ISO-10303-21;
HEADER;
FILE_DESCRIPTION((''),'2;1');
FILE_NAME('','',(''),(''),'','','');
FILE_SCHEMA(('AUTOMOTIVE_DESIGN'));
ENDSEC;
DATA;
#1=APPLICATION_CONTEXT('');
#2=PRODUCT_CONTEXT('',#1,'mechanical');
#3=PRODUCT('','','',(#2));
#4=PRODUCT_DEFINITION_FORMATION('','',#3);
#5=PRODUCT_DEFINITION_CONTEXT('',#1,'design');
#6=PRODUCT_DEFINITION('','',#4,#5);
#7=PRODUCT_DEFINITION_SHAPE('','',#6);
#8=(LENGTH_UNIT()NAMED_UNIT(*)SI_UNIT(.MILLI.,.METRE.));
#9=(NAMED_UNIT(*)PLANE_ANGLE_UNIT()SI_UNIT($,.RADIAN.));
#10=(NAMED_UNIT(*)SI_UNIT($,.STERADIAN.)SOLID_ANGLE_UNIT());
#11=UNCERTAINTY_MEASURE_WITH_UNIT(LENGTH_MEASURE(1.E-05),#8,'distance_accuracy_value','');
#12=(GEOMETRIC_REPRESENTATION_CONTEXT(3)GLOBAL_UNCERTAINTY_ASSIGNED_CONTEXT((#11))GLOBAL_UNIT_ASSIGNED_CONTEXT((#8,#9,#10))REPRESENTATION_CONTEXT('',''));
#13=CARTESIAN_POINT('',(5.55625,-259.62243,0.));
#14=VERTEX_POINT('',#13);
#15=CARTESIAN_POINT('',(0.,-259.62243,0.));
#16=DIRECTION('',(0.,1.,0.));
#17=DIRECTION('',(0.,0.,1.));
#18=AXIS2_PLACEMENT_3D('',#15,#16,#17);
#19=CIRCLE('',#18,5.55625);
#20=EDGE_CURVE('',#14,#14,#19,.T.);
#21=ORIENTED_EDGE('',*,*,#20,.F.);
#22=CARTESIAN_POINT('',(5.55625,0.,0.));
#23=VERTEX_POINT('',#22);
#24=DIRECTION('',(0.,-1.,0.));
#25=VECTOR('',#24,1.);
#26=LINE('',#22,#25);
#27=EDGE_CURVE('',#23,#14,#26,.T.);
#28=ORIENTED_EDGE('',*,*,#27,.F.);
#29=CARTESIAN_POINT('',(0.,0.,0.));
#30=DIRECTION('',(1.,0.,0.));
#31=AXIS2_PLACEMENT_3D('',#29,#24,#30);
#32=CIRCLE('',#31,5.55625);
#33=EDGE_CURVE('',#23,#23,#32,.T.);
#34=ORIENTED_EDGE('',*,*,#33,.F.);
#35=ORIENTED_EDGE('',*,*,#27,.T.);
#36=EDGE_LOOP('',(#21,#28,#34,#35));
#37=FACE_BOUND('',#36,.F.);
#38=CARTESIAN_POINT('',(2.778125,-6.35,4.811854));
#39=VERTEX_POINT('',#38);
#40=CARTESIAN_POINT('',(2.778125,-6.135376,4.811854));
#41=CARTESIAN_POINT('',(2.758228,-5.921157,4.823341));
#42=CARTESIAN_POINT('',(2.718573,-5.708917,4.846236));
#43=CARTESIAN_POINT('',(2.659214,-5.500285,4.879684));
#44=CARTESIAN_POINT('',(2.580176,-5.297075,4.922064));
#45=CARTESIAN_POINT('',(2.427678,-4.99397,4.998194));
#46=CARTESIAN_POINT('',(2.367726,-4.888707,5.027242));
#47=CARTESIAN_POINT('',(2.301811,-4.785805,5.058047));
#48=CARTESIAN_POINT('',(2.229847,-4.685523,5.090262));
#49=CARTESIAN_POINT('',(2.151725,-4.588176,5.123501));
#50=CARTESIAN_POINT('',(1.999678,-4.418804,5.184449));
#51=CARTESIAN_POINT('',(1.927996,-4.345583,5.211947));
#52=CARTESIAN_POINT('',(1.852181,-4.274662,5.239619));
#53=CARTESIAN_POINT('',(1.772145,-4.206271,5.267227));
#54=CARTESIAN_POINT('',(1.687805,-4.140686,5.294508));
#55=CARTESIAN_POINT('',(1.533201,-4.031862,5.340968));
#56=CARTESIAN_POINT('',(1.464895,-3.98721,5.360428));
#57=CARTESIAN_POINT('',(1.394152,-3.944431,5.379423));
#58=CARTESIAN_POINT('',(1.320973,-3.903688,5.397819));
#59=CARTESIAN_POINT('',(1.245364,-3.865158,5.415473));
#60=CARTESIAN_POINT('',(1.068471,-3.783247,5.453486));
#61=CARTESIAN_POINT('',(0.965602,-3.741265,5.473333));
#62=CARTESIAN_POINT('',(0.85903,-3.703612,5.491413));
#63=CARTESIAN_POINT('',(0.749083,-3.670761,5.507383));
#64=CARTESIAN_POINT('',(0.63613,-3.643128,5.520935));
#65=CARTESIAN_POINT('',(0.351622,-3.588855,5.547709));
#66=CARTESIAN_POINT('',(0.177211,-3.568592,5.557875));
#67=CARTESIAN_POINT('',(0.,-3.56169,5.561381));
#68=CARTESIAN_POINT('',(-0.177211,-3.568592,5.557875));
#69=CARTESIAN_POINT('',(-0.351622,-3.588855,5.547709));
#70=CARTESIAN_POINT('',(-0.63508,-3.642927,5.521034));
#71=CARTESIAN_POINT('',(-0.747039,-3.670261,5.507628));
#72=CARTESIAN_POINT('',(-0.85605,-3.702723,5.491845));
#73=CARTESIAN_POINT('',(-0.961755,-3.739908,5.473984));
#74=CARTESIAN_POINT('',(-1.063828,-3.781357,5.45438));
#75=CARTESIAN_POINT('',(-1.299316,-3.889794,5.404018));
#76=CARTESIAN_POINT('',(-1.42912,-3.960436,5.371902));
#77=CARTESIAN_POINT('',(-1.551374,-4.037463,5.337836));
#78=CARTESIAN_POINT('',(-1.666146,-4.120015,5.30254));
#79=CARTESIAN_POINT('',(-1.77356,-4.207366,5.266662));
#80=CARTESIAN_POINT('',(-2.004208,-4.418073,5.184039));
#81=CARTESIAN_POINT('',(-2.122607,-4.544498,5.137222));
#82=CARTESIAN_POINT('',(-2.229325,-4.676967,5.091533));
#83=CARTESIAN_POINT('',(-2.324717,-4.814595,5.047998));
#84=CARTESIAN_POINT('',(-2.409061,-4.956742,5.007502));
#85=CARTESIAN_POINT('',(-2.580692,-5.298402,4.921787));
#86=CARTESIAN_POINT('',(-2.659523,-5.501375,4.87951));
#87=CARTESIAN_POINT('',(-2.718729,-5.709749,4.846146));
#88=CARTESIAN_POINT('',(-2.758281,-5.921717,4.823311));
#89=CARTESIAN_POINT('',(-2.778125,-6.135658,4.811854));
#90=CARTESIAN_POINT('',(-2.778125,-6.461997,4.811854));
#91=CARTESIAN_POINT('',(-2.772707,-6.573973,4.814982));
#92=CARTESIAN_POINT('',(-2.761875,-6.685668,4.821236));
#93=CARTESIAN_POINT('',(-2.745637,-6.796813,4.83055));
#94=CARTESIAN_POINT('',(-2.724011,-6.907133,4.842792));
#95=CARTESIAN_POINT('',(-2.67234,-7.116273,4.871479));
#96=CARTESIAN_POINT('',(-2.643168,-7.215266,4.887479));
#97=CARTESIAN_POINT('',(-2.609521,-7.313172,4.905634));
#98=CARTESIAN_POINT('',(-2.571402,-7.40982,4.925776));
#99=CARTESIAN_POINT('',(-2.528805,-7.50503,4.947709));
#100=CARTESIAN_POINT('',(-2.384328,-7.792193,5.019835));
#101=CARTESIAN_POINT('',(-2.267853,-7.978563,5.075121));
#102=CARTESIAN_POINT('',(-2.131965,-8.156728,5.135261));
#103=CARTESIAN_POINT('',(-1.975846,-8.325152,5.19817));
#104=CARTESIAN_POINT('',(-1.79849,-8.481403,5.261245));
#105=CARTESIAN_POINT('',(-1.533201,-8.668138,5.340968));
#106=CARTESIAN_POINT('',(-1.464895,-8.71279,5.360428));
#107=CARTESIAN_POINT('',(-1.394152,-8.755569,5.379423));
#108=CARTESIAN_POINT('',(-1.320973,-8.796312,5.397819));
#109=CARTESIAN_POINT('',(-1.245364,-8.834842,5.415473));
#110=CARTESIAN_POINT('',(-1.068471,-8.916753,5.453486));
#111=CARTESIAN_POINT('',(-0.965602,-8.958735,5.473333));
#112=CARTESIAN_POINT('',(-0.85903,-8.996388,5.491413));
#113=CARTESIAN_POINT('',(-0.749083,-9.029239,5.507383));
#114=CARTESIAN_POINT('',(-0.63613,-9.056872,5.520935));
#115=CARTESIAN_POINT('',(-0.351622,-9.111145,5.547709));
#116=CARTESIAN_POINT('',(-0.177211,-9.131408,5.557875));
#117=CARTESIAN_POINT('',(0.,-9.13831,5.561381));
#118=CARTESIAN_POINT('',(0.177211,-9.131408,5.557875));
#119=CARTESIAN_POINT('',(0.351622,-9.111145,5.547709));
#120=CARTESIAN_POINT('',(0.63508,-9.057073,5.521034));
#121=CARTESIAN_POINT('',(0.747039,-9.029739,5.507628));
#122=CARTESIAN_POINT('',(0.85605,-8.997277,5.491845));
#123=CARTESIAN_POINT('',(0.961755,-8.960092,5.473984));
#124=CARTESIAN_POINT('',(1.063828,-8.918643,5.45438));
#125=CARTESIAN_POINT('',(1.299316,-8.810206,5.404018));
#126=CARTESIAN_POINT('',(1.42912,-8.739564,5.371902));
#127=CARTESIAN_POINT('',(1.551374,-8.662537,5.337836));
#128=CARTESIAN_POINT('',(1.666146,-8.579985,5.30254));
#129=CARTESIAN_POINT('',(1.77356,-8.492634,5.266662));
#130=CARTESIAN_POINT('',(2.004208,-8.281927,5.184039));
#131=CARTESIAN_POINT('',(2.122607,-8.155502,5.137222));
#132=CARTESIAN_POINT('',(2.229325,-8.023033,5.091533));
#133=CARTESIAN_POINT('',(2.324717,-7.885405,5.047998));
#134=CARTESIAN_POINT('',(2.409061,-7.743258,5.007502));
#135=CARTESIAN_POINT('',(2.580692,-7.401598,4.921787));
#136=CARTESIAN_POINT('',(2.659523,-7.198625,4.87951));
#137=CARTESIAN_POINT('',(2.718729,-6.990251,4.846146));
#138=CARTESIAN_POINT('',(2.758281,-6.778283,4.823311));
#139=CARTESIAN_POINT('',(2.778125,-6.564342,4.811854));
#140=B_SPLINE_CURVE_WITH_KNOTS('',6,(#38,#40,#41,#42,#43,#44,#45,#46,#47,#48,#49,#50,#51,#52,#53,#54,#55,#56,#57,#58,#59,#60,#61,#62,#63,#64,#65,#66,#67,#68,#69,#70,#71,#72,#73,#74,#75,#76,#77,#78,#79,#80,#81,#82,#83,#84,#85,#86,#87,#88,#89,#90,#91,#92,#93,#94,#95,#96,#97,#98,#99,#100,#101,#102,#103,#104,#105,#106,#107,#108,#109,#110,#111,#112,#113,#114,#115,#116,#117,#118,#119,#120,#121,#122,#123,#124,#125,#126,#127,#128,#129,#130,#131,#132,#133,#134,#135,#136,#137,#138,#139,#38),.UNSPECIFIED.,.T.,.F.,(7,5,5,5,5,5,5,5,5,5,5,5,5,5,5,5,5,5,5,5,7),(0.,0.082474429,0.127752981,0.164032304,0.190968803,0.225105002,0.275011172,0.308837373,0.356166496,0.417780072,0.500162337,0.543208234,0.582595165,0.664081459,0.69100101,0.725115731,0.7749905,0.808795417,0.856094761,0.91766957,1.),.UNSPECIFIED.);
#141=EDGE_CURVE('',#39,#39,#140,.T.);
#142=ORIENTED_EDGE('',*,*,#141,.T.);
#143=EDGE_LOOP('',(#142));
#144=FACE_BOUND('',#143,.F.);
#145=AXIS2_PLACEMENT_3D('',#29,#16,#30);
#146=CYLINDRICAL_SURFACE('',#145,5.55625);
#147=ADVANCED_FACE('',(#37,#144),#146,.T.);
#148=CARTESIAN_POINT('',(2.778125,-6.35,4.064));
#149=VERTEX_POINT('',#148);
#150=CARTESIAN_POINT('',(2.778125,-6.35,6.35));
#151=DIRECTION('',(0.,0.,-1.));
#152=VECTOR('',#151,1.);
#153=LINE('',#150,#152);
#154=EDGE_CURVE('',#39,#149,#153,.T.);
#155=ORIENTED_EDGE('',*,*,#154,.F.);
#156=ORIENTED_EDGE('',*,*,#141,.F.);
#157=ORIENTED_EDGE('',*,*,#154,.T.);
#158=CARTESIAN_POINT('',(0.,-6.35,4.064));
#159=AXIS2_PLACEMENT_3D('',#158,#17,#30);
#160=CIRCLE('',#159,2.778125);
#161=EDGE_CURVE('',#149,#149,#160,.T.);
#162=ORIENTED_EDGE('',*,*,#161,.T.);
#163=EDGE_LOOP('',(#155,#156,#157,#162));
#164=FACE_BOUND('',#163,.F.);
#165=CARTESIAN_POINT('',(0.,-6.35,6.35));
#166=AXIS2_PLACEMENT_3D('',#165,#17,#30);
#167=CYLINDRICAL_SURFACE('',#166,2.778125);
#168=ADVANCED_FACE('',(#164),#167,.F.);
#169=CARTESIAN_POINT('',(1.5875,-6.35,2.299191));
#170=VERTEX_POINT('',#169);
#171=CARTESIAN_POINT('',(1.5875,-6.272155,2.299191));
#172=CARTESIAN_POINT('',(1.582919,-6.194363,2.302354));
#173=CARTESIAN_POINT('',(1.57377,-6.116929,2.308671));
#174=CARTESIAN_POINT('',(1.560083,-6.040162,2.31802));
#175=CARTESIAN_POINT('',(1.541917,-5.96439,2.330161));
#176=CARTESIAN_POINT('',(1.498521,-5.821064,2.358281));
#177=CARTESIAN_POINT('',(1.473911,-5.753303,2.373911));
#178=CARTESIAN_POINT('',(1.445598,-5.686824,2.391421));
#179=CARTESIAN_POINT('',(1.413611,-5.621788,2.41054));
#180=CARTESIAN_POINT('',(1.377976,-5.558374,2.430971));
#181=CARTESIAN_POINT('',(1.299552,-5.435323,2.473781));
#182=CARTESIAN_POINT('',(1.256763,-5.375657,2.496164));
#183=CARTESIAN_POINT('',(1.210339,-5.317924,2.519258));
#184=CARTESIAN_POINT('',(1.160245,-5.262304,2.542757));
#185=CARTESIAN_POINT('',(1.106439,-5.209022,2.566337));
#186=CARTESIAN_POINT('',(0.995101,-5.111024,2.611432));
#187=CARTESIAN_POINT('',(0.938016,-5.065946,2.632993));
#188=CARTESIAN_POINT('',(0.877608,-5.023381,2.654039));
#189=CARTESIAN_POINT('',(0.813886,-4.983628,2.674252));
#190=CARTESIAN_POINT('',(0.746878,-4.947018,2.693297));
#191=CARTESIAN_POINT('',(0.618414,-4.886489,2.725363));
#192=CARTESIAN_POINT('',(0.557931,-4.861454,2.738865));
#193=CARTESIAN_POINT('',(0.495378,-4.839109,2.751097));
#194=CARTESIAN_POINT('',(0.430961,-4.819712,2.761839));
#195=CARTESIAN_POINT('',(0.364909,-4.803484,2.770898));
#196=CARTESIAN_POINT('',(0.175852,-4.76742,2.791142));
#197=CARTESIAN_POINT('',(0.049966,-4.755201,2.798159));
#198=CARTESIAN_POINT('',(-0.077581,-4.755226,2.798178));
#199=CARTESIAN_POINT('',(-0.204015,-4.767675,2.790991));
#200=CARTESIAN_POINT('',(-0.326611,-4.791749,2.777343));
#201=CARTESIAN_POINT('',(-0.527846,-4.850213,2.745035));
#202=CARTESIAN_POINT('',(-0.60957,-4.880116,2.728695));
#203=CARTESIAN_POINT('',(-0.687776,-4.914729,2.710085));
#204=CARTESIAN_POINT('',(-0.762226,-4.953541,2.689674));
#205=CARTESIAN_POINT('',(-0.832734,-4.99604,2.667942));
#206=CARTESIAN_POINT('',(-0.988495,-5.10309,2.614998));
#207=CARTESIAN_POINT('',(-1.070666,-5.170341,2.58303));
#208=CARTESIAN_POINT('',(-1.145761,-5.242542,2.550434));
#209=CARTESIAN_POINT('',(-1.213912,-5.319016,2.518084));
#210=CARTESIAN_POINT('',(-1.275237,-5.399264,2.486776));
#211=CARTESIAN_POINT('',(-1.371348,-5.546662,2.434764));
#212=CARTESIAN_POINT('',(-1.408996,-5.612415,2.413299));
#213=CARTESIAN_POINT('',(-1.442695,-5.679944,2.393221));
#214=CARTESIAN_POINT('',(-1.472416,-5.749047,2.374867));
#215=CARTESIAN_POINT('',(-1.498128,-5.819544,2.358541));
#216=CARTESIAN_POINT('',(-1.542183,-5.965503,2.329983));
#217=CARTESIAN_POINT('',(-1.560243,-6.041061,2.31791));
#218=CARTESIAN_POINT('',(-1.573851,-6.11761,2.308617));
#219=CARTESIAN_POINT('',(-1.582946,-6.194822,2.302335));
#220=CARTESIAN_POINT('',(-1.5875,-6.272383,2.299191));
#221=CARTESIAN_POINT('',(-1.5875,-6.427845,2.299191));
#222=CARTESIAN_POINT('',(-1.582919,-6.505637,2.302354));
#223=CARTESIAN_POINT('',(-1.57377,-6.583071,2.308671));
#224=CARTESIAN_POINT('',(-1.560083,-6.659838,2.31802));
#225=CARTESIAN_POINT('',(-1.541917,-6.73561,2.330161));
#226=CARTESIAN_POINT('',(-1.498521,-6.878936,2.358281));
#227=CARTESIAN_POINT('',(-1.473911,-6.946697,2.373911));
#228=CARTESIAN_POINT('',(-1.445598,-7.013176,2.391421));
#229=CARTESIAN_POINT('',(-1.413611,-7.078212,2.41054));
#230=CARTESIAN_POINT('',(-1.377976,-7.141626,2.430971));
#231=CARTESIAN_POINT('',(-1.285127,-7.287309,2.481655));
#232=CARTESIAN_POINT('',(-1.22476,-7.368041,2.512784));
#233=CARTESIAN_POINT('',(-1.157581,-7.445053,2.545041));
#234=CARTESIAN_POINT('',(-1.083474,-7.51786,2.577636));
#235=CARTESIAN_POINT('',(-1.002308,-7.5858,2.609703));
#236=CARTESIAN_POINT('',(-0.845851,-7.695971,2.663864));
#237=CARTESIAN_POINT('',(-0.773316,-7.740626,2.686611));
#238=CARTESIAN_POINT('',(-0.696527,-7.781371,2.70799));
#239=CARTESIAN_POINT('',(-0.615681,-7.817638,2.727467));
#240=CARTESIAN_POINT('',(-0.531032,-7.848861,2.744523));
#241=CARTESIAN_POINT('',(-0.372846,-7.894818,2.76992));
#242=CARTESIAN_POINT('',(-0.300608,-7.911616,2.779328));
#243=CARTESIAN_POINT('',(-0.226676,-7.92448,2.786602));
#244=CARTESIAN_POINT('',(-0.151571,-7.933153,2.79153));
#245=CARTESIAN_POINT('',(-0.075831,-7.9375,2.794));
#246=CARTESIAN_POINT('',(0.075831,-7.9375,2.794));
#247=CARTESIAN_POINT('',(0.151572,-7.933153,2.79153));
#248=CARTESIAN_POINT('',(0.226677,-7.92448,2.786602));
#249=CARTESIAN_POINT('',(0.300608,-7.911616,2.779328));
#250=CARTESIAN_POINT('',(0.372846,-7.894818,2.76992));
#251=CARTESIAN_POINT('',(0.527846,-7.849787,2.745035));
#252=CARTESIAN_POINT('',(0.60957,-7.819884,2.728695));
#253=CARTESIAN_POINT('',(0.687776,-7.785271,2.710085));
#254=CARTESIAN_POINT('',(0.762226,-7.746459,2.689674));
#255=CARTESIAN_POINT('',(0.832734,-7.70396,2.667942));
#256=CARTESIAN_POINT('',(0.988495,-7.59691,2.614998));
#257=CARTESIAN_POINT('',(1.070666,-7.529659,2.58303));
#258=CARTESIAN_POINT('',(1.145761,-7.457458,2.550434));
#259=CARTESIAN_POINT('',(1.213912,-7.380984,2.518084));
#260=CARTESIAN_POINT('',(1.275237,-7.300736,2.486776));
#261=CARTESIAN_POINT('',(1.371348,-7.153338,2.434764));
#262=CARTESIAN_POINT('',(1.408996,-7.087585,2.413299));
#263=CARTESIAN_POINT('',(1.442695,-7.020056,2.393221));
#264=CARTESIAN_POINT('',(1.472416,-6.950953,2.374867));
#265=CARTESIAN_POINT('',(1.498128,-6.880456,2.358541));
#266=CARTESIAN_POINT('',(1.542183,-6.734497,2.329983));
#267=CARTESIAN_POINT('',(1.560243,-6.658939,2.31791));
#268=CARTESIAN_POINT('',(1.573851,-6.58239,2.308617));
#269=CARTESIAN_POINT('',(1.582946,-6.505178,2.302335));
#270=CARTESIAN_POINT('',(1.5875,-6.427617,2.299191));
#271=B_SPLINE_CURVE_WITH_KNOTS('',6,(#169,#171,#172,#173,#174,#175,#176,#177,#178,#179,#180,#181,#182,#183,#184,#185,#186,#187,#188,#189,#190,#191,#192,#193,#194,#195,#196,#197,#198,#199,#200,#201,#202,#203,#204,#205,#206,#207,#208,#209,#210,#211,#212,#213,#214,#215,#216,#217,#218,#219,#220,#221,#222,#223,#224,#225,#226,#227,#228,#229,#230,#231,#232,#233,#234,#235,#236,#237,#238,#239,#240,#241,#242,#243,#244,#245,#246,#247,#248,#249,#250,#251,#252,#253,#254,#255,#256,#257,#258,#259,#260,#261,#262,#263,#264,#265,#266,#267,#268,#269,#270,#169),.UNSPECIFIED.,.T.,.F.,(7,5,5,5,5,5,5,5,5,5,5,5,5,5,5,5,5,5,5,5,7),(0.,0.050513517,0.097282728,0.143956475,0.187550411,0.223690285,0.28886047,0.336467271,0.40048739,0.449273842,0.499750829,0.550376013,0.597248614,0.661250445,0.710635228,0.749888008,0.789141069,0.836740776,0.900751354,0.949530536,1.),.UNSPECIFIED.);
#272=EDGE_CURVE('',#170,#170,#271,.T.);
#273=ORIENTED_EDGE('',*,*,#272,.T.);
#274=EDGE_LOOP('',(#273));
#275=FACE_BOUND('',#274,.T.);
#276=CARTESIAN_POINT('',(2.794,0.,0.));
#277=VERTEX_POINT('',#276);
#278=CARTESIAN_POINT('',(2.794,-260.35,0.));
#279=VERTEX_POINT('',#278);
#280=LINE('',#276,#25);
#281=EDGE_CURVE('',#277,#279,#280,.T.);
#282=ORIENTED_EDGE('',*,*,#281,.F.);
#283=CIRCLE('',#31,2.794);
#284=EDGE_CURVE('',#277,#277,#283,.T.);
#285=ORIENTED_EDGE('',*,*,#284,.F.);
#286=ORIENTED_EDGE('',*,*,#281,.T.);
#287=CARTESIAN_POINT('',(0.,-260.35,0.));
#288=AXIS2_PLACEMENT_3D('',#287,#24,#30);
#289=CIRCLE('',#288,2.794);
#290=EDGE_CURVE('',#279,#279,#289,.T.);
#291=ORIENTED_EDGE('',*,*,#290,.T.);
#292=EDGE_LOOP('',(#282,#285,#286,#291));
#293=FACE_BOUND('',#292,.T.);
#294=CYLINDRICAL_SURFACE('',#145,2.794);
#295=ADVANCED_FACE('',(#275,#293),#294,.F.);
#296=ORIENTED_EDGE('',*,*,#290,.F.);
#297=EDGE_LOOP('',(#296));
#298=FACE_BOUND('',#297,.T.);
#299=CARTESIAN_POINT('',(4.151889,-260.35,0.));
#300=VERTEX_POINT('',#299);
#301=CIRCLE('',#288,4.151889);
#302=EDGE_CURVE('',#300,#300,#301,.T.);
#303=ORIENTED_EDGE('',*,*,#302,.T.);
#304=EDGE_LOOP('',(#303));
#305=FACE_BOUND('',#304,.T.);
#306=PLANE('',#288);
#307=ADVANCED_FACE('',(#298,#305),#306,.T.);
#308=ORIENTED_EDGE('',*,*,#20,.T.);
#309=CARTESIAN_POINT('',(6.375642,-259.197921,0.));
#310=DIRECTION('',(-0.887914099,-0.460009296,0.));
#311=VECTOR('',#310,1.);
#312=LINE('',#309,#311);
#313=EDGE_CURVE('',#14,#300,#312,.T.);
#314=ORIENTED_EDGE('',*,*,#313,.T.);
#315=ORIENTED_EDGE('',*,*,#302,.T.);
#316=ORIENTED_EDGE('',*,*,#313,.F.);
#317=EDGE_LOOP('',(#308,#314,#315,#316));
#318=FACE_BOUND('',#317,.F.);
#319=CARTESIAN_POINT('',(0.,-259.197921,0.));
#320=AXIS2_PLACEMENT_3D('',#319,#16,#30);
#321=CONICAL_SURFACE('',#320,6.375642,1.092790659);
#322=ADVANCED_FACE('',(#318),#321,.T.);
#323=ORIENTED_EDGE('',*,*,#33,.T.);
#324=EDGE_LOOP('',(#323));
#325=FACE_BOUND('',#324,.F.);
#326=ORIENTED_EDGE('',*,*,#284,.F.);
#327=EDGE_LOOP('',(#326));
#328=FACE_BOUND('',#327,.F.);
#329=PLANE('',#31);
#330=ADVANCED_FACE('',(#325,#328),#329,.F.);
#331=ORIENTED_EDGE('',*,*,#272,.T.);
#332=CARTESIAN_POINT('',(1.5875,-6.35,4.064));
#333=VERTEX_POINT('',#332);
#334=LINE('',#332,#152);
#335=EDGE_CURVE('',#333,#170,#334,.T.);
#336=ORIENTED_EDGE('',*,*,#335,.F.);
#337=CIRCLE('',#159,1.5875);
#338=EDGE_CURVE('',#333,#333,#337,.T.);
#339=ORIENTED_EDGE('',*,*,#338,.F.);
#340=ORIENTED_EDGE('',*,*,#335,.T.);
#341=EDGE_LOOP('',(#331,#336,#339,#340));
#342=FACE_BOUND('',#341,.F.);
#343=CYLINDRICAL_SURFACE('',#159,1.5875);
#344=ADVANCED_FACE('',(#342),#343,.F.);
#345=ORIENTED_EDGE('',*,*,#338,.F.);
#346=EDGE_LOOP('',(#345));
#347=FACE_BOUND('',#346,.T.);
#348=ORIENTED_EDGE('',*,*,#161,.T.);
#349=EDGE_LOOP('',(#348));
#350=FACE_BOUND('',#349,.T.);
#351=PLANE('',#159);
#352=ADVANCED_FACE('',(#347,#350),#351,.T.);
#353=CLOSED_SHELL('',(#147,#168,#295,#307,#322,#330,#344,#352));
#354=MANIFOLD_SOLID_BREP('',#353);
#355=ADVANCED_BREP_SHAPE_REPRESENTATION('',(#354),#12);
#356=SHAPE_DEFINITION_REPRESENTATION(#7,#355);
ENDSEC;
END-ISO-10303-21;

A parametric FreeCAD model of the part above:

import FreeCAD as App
import Part
import Sketcher
from FreeCAD import Vector
Q = App.Units.Quantity


def add_polygon(sketch, points):
    """Adds a closed chain of lines whose ends are joined by coincident constraints."""
    first, n = sketch.GeometryCount, len(points)
    for a, b in zip(points, points[1:] + points[:1]):
        sketch.addGeometry(Part.LineSegment(App.Vector(*a, 0), App.Vector(*b, 0)), False)
    for i in range(n):
        sketch.addConstraint(Sketcher.Constraint("Coincident", first + i, 2, first + (i + 1) % n, 1))

doc = App.newDocument("Part")
body = doc.addObject("PartDesign::Body", "Body")

# Sketch on XZ plane
sketch1 = doc.addObject("Sketcher::SketchObject", "Sketch")
body.addObject(sketch1)
sketch1.AttachmentSupport = (doc.XZ_Plane, [""])
sketch1.MapMode = "FlatFace"
sketch1.addGeometry([
    Part.Circle(Vector(0, 0, 0), Vector(0, 0, 1), 5.6),
    Part.Circle(Vector(0, 0, 0), Vector(0, 0, 1), 2.8),
], False)
sketch1.addConstraint([
    Sketcher.Constraint("Coincident", 0, 3, -1, 1),
    Sketcher.Constraint("Coincident", 1, 3, -1, 1),
    Sketcher.Constraint("Diameter", 1, Q("0.22 in")),
    Sketcher.Constraint("Diameter", 0, Q("0.4375 in")),
])
pad1 = doc.addObject("PartDesign::Pad", "Pad")
body.addObject(pad1)
pad1.Profile = sketch1
pad1.Length = Q("10.25 in")

# Sketch on XY plane
sketch2 = doc.addObject("Sketcher::SketchObject", "Sketch001")
body.addObject(sketch2)
sketch2.AttachmentSupport = (doc.XY_Plane, [""])
sketch2.MapMode = "FlatFace"
sketch2.AttachmentOffset = App.Placement(Vector(0, 0, 0.25 * 25.4), App.Rotation())
sketch2.addGeometry(Part.Circle(Vector(0, -6.3, 0), Vector(0, 0, 1), 2.8), False)
sketch2.addConstraint([
    Sketcher.Constraint("PointOnObject", 0, 3, -2),
    Sketcher.Constraint("Diameter", 0, Q("0.21875 in")),
    Sketcher.Constraint("DistanceY", 0, 3, -1, 1, Q("0.25 in")),
])
pocket1 = doc.addObject("PartDesign::Pocket", "Pocket")
body.addObject(pocket1)
pocket1.Profile = sketch2
pocket1.Length = Q("0.09 in")

# Sketch on XY plane
sketch3 = doc.addObject("Sketcher::SketchObject", "Sketch002")
body.addObject(sketch3)
sketch3.AttachmentSupport = (doc.XY_Plane, [""])
sketch3.MapMode = "FlatFace"
sketch3.AttachmentOffset = App.Placement(Vector(0, 0, 0.16 * 25.4), App.Rotation())
sketch3.addGeometry(Part.Circle(Vector(0, -6.3, 0), Vector(0, 0, 1), 1.6), False)
sketch3.addConstraint([
    Sketcher.Constraint("PointOnObject", 0, 3, -2),
    Sketcher.Constraint("Diameter", 0, Q("0.125 in")),
    Sketcher.Constraint("DistanceY", 0, 3, -1, 1, Q("0.25 in")),
])
pocket2 = doc.addObject("PartDesign::Pocket", "Pocket001")
body.addObject(pocket2)
pocket2.Profile = sketch3
pocket2.Length = Q("0.09 in")

# Sketch on XY plane
sketch4 = doc.addObject("Sketcher::SketchObject", "Sketch003")
body.addObject(sketch4)
sketch4.AttachmentSupport = (doc.XY_Plane, [""])
sketch4.MapMode = "FlatFace"
add_polygon(sketch4, [(6.4, -259.2), (3.9, -260.5), (6.4, -261)])  # lines 0-2
sketch4.addConstraint([
    Sketcher.Constraint("Vertical", 2),
    Sketcher.Constraint("DistanceY", 2, 1, 2, 2, 1.824766),
    Sketcher.Constraint("DistanceX", -1, 1, 0, 2, 3.892762),
    Sketcher.Constraint("DistanceY", 0, 2, -1, 1, 260.484248),
    Sketcher.Constraint("DistanceY", 2, 2, -1, 1, 259.197921),
    Sketcher.Constraint("DistanceX", 0, 2, 1, 2, 2.48288),
])
groove = doc.addObject("PartDesign::Groove", "Groove")
body.addObject(groove)
groove.Profile = sketch4
groove.ReferenceAxis = (sketch4, ["V_Axis"])
groove.Angle = 360

doc.recompute()
